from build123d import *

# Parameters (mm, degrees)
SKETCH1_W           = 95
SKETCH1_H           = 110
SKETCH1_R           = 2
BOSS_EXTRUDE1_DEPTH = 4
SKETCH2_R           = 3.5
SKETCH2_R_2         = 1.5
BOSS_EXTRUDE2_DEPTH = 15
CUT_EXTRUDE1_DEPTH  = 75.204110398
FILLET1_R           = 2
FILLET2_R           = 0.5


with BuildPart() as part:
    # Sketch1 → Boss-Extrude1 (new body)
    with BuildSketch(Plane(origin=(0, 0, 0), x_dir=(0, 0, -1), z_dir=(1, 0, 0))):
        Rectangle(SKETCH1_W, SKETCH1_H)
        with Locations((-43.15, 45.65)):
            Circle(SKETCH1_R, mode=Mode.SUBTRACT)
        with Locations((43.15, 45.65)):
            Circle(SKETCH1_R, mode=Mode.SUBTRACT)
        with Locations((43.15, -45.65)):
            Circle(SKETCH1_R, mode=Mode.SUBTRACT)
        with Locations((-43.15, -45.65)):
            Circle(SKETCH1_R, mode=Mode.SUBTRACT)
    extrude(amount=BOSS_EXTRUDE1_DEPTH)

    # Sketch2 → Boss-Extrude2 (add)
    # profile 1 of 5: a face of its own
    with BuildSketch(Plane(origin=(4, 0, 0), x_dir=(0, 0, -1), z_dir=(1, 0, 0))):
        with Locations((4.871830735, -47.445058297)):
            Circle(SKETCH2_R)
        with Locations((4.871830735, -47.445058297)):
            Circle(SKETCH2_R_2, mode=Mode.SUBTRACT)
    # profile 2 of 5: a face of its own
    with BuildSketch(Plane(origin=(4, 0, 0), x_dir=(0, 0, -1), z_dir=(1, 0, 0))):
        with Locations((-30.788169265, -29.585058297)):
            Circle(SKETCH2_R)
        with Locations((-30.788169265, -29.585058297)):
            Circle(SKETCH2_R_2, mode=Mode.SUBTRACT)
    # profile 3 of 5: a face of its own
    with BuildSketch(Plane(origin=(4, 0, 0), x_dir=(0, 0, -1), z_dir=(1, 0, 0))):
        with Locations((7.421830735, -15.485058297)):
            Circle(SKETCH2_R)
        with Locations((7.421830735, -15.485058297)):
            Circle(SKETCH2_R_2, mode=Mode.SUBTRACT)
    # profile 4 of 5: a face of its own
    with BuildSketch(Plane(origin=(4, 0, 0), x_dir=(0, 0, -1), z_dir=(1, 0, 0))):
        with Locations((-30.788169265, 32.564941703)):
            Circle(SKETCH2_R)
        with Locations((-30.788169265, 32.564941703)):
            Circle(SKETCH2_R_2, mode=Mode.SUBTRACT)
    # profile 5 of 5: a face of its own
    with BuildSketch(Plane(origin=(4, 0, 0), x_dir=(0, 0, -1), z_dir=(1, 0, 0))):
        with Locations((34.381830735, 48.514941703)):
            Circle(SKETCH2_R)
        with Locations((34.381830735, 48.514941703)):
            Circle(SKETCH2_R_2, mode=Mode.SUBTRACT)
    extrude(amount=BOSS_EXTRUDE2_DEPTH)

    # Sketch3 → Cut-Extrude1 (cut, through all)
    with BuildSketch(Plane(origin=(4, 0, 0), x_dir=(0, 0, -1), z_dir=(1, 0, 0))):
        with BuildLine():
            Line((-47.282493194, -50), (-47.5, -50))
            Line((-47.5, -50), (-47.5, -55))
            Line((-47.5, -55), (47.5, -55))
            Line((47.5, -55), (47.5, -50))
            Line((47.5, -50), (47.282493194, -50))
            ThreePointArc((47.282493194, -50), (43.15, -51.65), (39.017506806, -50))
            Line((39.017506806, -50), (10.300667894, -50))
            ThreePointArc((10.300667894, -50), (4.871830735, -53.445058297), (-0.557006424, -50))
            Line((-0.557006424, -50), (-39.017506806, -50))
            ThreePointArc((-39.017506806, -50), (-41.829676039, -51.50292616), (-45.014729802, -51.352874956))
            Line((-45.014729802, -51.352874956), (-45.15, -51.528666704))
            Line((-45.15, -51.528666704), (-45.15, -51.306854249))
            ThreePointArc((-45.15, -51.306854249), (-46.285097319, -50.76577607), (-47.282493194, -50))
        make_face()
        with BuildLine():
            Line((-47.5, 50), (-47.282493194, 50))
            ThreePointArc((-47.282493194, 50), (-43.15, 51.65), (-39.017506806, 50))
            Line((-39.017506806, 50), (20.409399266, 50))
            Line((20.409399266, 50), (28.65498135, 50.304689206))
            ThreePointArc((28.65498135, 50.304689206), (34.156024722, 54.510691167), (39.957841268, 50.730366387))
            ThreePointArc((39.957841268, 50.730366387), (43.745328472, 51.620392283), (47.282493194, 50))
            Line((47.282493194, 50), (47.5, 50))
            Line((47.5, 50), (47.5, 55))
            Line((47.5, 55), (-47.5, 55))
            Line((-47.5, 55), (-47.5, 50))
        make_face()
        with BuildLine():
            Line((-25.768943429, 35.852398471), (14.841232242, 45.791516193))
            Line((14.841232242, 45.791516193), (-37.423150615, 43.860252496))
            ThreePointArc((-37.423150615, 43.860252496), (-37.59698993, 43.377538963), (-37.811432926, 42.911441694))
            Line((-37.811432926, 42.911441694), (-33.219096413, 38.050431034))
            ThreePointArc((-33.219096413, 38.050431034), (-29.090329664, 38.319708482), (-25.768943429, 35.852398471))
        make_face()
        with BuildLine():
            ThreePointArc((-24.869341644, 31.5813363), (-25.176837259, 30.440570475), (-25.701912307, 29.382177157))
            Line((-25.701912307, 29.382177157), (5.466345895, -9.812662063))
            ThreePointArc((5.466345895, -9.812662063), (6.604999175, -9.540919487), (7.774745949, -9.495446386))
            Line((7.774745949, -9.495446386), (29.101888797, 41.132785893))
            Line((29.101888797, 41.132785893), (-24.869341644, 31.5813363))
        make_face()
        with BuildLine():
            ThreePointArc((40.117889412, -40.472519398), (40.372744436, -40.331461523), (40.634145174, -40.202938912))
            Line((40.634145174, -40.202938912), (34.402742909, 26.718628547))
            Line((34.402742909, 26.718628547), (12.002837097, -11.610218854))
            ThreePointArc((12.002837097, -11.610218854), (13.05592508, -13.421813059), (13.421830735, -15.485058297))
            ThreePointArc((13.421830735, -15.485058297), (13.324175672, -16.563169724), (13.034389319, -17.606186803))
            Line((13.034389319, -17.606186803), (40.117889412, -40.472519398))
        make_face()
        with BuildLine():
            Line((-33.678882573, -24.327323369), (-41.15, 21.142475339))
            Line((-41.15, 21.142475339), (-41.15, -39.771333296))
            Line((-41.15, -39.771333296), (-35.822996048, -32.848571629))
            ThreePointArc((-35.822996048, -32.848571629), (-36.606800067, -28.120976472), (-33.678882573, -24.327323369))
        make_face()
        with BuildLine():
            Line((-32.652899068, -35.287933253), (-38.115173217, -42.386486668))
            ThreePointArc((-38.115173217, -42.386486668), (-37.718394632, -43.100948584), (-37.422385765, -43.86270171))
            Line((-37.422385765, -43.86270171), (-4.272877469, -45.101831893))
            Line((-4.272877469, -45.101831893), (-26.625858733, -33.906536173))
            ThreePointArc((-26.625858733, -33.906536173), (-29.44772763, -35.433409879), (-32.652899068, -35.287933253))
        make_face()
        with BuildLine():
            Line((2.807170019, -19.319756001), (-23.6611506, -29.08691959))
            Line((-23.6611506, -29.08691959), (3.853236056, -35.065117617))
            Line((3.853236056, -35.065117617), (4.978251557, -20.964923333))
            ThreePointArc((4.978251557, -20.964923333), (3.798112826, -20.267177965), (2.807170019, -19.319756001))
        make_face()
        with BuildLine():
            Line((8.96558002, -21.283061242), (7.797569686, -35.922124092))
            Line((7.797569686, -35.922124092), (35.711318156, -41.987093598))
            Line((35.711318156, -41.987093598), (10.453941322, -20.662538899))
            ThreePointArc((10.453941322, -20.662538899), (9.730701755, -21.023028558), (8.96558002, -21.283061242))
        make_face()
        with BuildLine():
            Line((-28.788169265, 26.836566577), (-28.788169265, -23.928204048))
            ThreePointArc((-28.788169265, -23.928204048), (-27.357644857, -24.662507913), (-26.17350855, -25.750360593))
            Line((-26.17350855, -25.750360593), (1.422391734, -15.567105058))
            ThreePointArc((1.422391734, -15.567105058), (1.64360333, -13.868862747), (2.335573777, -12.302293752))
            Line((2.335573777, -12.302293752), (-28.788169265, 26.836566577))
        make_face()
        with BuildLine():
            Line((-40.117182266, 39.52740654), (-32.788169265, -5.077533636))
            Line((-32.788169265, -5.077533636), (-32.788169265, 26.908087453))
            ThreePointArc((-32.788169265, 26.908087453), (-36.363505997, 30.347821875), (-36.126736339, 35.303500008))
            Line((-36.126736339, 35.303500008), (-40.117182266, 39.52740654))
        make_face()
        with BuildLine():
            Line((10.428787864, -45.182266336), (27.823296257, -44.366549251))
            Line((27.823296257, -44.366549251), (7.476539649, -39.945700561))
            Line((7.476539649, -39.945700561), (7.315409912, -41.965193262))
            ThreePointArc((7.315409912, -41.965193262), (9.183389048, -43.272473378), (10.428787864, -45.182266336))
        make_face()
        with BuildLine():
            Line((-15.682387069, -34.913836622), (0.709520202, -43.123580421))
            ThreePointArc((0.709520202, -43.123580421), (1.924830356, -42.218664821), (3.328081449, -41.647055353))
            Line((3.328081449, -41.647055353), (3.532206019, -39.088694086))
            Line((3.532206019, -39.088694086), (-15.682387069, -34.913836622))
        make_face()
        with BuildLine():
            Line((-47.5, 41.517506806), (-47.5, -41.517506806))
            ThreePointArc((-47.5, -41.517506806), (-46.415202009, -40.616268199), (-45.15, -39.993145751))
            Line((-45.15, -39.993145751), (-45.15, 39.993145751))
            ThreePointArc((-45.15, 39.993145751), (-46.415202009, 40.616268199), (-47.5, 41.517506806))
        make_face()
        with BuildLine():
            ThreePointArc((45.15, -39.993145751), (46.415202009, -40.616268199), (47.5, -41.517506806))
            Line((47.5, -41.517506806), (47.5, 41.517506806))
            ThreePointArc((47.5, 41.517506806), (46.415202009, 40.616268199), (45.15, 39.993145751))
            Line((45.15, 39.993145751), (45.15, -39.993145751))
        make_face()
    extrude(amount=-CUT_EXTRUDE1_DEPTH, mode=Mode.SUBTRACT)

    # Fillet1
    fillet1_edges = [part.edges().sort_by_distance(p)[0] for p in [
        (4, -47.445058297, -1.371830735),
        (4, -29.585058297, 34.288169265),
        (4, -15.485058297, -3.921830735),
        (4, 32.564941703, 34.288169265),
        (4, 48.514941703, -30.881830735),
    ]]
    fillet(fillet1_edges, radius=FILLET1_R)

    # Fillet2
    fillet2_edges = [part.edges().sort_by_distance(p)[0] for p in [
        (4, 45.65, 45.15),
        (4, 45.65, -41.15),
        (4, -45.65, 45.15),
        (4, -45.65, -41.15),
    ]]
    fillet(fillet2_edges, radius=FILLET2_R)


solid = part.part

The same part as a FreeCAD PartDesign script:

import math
import FreeCAD as App
import Part
import Sketcher
from FreeCAD import Vector
Q = App.Units.Quantity


def edges_at(feature, points):
    """Names of the edges that pass closest to the given points."""
    edges = feature.Shape.Edges
    near = lambda p: min(range(len(edges)), key=lambda i: edges[i].distToShape(Part.Vertex(*p))[0])
    return sorted({f"Edge{near(p) + 1}" for p in points})


def add_polygon(sketch, points):
    """Adds a closed chain of lines whose ends are joined by coincident constraints."""
    first, n = sketch.GeometryCount, len(points)
    for a, b in zip(points, points[1:] + points[:1]):
        sketch.addGeometry(Part.LineSegment(App.Vector(*a, 0), App.Vector(*b, 0)), False)
    for i in range(n):
        sketch.addConstraint(Sketcher.Constraint("Coincident", first + i, 2, first + (i + 1) % n, 1))

doc = App.newDocument("Part")
body = doc.addObject("PartDesign::Body", "Body")

sketch1 = body.newObject("Sketcher::SketchObject", "Sketch")
sketch1.AttachmentSupport = (doc.getObject("YZ_Plane"), [""])
sketch1.MapMode = "FlatFace"
add_polygon(sketch1, [(55, 47.5), (-55, 47.5), (-55, -47.5), (55, -47.5)])
sketch1.addGeometry(Part.Circle(Vector(-45.6, 43.1, 0), Vector(0, 0, 1), 2), False)
sketch1.addGeometry(Part.Circle(Vector(-45.6, -43.1, 0), Vector(0, 0, 1), 2), False)
sketch1.addGeometry(Part.Circle(Vector(45.6, 43.1, 0), Vector(0, 0, 1), 2), False)
sketch1.addGeometry(Part.Circle(Vector(45.6, -43.1, 0), Vector(0, 0, 1), 2), False)
sketch1.addConstraint([
    Sketcher.Constraint("Horizontal", 0),
    Sketcher.Constraint("Vertical", 1),
    Sketcher.Constraint("Horizontal", 2),
    Sketcher.Constraint("Vertical", 3),
    Sketcher.Constraint("Equal", 4, 5),
    Sketcher.Constraint("Equal", 5, 6),
    Sketcher.Constraint("Equal", 6, 7),
    Sketcher.Constraint("Symmetric", 5, 3, 6, 3, -1, 1),
    Sketcher.Constraint("Symmetric", 4, 3, 7, 3, -1, 1),
    Sketcher.Constraint("Symmetric", 0, 2, 2, 2, -1, 1),
    Sketcher.Constraint("Symmetric", 4, 3, 6, 3, -2),
    Sketcher.Constraint("Diameter", 4, Q("4 mm")),
    Sketcher.Constraint("DistanceX", 0, 2, 0, 1, Q("110 mm")),
    Sketcher.Constraint("DistanceY", 1, 2, 1, 1, Q("95 mm")),
    Sketcher.Constraint("DistanceY", 5, 3, 4, 3, Q("86.3 mm")),
    Sketcher.Constraint("DistanceX", 4, 3, 6, 3, Q("91.3 mm")),
])
pad1 = body.newObject("PartDesign::Pad", "Pad")
pad1.Profile = sketch1
pad1.Length = 4

sketch2 = body.newObject("Sketcher::SketchObject", "Sketch001")
sketch2.AttachmentSupport = (doc.getObject("YZ_Plane"), [""])
sketch2.MapMode = "FlatFace"
sketch2.AttachmentOffset = App.Placement(Vector(0, 0, 4), App.Rotation())
sketch2.addGeometry([
    Part.Circle(Vector(-47.4, -4.9, 0), Vector(0, 0, 1), 3.5),
    Part.Circle(Vector(-47.4, -4.9, 0), Vector(0, 0, 1), 1.5),
    Part.Circle(Vector(-29.6, 30.8, 0), Vector(0, 0, 1), 3.5),
    Part.Circle(Vector(-29.6, 30.8, 0), Vector(0, 0, 1), 1.5),
    Part.Circle(Vector(-15.5, -7.4, 0), Vector(0, 0, 1), 3.5),
    Part.Circle(Vector(-15.5, -7.4, 0), Vector(0, 0, 1), 1.5),
    Part.Circle(Vector(32.6, 30.8, 0), Vector(0, 0, 1), 3.5),
    Part.Circle(Vector(32.6, 30.8, 0), Vector(0, 0, 1), 1.5),
    Part.Circle(Vector(48.5, -34.4, 0), Vector(0, 0, 1), 3.5),
    Part.Circle(Vector(48.5, -34.4, 0), Vector(0, 0, 1), 1.5),
], False)
sketch2.addConstraint([
    Sketcher.Constraint("Coincident", 1, 3, 0, 3),
    Sketcher.Constraint("Coincident", 3, 3, 2, 3),
    Sketcher.Constraint("Coincident", 5, 3, 4, 3),
    Sketcher.Constraint("Coincident", 7, 3, 6, 3),
    Sketcher.Constraint("Coincident", 9, 3, 8, 3),
    Sketcher.Constraint("Equal", 0, 2),
    Sketcher.Constraint("Equal", 1, 3),
    Sketcher.Constraint("Equal", 2, 4),
    Sketcher.Constraint("Equal", 3, 5),
    Sketcher.Constraint("Equal", 4, 6),
    Sketcher.Constraint("Equal", 5, 7),
    Sketcher.Constraint("Equal", 6, 8),
    Sketcher.Constraint("Equal", 7, 9),
    Sketcher.Constraint("Horizontal", 3, 3, 6, 3),
    Sketcher.Constraint("Diameter", 0, Q("7 mm")),
    Sketcher.Constraint("Diameter", 1, Q("3 mm")),
    Sketcher.Constraint("DistanceX", 4, 3, 8, 3, Q("64 mm")),
    Sketcher.Constraint("DistanceX", 2, 3, 4, 3, Q("14.1 mm")),
    Sketcher.Constraint("DistanceX", 0, 3, 2, 3, Q("17.86 mm")),
    Sketcher.Constraint("DistanceY", 0, 3, 2, 3, Q("35.66 mm")),
    Sketcher.Constraint("DistanceY", 4, 3, 0, 3, Q("2.55 mm")),
    Sketcher.Constraint("DistanceX", 4, 3, 6, 3, Q("48.05 mm")),
    Sketcher.Constraint("DistanceY", 8, 3, 6, 3, Q("65.17 mm")),
    Sketcher.Constraint("DistanceX", 0, 3, -1, 1, Q("47.445058 mm")),
    Sketcher.Constraint("DistanceY", 0, 3, -1, 1, Q("4.871831 mm")),
])
pad2 = body.newObject("PartDesign::Pad", "Pad001")
pad2.Profile = sketch2
pad2.Length = 15

sketch3 = body.newObject("Sketcher::SketchObject", "Sketch002")
sketch3.AttachmentSupport = (doc.getObject("YZ_Plane"), [""])
sketch3.MapMode = "FlatFace"
sketch3.AttachmentOffset = App.Placement(Vector(0, 0, 4), App.Rotation())
sketch3.addGeometry([
    Part.LineSegment(Vector(-50, 47.28, 0), Vector(-50, 47.5, 0)),
    Part.LineSegment(Vector(-50, 47.5, 0), Vector(-55, 47.5, 0)),
    Part.LineSegment(Vector(-55, 47.5, 0), Vector(-55, -47.5, 0)),
    Part.LineSegment(Vector(-55, -47.5, 0), Vector(-50, -47.5, 0)),
    Part.LineSegment(Vector(-50, -47.5, 0), Vector(-50, -47.28, 0)),
    Part.ArcOfCircle(Part.Circle(Vector(-45.65, -43.15, 0), Vector(0, 0, 1), 6), math.radians(136), math.radians(224)),
    Part.LineSegment(Vector(-50, -39.02, 0), Vector(-50, -10.3, 0)),
    Part.ArcOfCircle(Part.Circle(Vector(-47.45, -4.87, 0), Vector(0, 0, 1), 6), math.radians(115), math.radians(245)),
    Part.LineSegment(Vector(-50, 0.56, 0), Vector(-50, 39.02, 0)),
    Part.ArcOfCircle(Part.Circle(Vector(-45.65, 43.15, 0), Vector(0, 0, 1), 6), math.radians(162), math.radians(224)),
    Part.LineSegment(Vector(-51.35, 45.01, 0), Vector(-51.53, 45.15, 0)),
    Part.LineSegment(Vector(-51.53, 45.15, 0), Vector(-51.31, 45.15, 0)),
    Part.ArcOfCircle(Part.Circle(Vector(-45.65, 43.15, 0), Vector(0, 0, 1), 6), math.radians(136), math.radians(161)),
    Part.LineSegment(Vector(50, 47.5, 0), Vector(50, 47.28, 0)),
    Part.ArcOfCircle(Part.Circle(Vector(45.65, 43.15, 0), Vector(0, 0, 1), 6), math.radians(-44), math.radians(44)),
    Part.LineSegment(Vector(50, 39.02, 0), Vector(50, -20.41, 0)),
    Part.LineSegment(Vector(50, -20.41, 0), Vector(50.3, -28.65, 0)),
    Part.ArcOfCircle(Part.Circle(Vector(48.51, -34.38, 0), Vector(0, 0, 1), 6), math.radians(-68), math.radians(73)),
    Part.ArcOfCircle(Part.Circle(Vector(45.65, -43.15, 0), Vector(0, 0, 1), 6), math.radians(-44), math.radians(32)),
    Part.LineSegment(Vector(50, -47.28, 0), Vector(50, -47.5, 0)),
    Part.LineSegment(Vector(50, -47.5, 0), Vector(55, -47.5, 0)),
    Part.LineSegment(Vector(55, -47.5, 0), Vector(55, 47.5, 0)),
    Part.LineSegment(Vector(55, 47.5, 0), Vector(50, 47.5, 0)),
    Part.LineSegment(Vector(35.85, 25.77, 0), Vector(45.79, -14.84, 0)),
    Part.LineSegment(Vector(45.79, -14.84, 0), Vector(43.86, 37.42, 0)),
    Part.ArcOfCircle(Part.Circle(Vector(45.65, 43.15, 0), Vector(0, 0, 1), 6), math.radians(-117.16), math.radians(-107.36)),
    Part.LineSegment(Vector(42.91, 37.81, 0), Vector(38.05, 33.22, 0)),
    Part.ArcOfCircle(Part.Circle(Vector(32.56, 30.79, 0), Vector(0, 0, 1), 6), math.radians(-57), math.radians(24)),
    Part.ArcOfCircle(Part.Circle(Vector(32.56, 30.79, 0), Vector(0, 0, 1), 6), math.radians(-122), math.radians(-99)),
    Part.LineSegment(Vector(29.38, 25.7, 0), Vector(-9.81, -5.47, 0)),
    Part.ArcOfCircle(Part.Circle(Vector(-15.49, -7.42, 0), Vector(0, 0, 1), 6), math.radians(-3), math.radians(19)),
    Part.LineSegment(Vector(-9.5, -7.77, 0), Vector(41.13, -29.1, 0)),
    Part.LineSegment(Vector(41.13, -29.1, 0), Vector(31.58, 24.87, 0)),
    Part.ArcOfCircle(Part.Circle(Vector(-45.65, -43.15, 0), Vector(0, 0, 1), 6), math.radians(24.79), math.radians(30.35)),
    Part.LineSegment(Vector(-40.2, -40.63, 0), Vector(26.72, -34.4, 0)),
    Part.LineSegment(Vector(26.72, -34.4, 0), Vector(-11.61, -12, 0)),
    Part.ArcOfCircle(Part.Circle(Vector(-15.49, -7.42, 0), Vector(0, 0, 1), 6), math.radians(-90), math.radians(-50)),
    Part.ArcOfCircle(Part.Circle(Vector(-15.49, -7.42, 0), Vector(0, 0, 1), 6), math.radians(-111), math.radians(-90)),
    Part.LineSegment(Vector(-17.61, -13.03, 0), Vector(-40.47, -40.12, 0)),
    Part.LineSegment(Vector(-24.33, 33.68, 0), Vector(21.14, 41.15, 0)),
    Part.LineSegment(Vector(21.14, 41.15, 0), Vector(-39.77, 41.15, 0)),
    Part.LineSegment(Vector(-39.77, 41.15, 0), Vector(-32.85, 35.82, 0)),
    Part.ArcOfCircle(Part.Circle(Vector(-29.59, 30.79, 0), Vector(0, 0, 1), 6), math.radians(29), math.radians(123)),
    Part.LineSegment(Vector(-35.29, 32.65, 0), Vector(-42.39, 38.12, 0)),
    Part.ArcOfCircle(Part.Circle(Vector(-45.65, 43.15, 0), Vector(0, 0, 1), 6), math.radians(-72.67), math.radians(-57.05)),
    Part.LineSegment(Vector(-43.86, 37.42, 0), Vector(-45.1, 4.27, 0)),
    Part.LineSegment(Vector(-45.1, 4.27, 0), Vector(-33.91, 26.63, 0)),
    Part.ArcOfCircle(Part.Circle(Vector(-29.59, 30.79, 0), Vector(0, 0, 1), 6), math.radians(162), math.radians(224)),
    Part.LineSegment(Vector(-19.32, -2.81, 0), Vector(-29.09, 23.66, 0)),
    Part.LineSegment(Vector(-29.09, 23.66, 0), Vector(-35.07, -3.85, 0)),
    Part.LineSegment(Vector(-35.07, -3.85, 0), Vector(-20.96, -4.98, 0)),
    Part.ArcOfCircle(Part.Circle(Vector(-15.49, -7.42, 0), Vector(0, 0, 1), 6), math.radians(130), math.radians(156)),
    Part.LineSegment(Vector(-21.28, -8.97, 0), Vector(-35.92, -7.8, 0)),
    Part.LineSegment(Vector(-35.92, -7.8, 0), Vector(-41.99, -35.71, 0)),
    Part.LineSegment(Vector(-41.99, -35.71, 0), Vector(-20.66, -10.45, 0)),
    Part.ArcOfCircle(Part.Circle(Vector(-15.49, -7.42, 0), Vector(0, 0, 1), 6), math.radians(-165.09), math.radians(-149.65)),
    Part.LineSegment(Vector(26.84, 28.79, 0), Vector(-23.93, 28.79, 0)),
    Part.ArcOfCircle(Part.Circle(Vector(-29.59, 30.79, 0), Vector(0, 0, 1), 6), math.radians(-50), math.radians(-19)),
    Part.LineSegment(Vector(-25.75, 26.17, 0), Vector(-15.57, -1.42, 0)),
    Part.ArcOfCircle(Part.Circle(Vector(-15.49, -7.42, 0), Vector(0, 0, 1), 6), math.radians(58), math.radians(91)),
    Part.LineSegment(Vector(-12.3, -2.34, 0), Vector(26.84, 28.79, 0)),
    Part.LineSegment(Vector(39.53, 40.12, 0), Vector(-5.08, 32.79, 0)),
    Part.LineSegment(Vector(-5.08, 32.79, 0), Vector(26.91, 32.79, 0)),
    Part.ArcOfCircle(Part.Circle(Vector(32.56, 30.79, 0), Vector(0, 0, 1), 6), math.radians(63), math.radians(161)),
    Part.LineSegment(Vector(35.3, 36.13, 0), Vector(39.53, 40.12, 0)),
    Part.LineSegment(Vector(-45.18, -10.43, 0), Vector(-44.37, -27.82, 0)),
    Part.LineSegment(Vector(-44.37, -27.82, 0), Vector(-39.95, -7.48, 0)),
    Part.LineSegment(Vector(-39.95, -7.48, 0), Vector(-41.97, -7.32, 0)),
    Part.ArcOfCircle(Part.Circle(Vector(-47.45, -4.87, 0), Vector(0, 0, 1), 6), math.radians(-68), math.radians(-24)),
    Part.LineSegment(Vector(-34.91, 15.68, 0), Vector(-43.12, -0.71, 0)),
    Part.ArcOfCircle(Part.Circle(Vector(-47.45, -4.87, 0), Vector(0, 0, 1), 6), math.radians(15), math.radians(44)),
    Part.LineSegment(Vector(-41.65, -3.33, 0), Vector(-39.09, -3.53, 0)),
    Part.LineSegment(Vector(-39.09, -3.53, 0), Vector(-34.91, 15.68, 0)),
    Part.LineSegment(Vector(41.52, 47.5, 0), Vector(-41.52, 47.5, 0)),
    Part.ArcOfCircle(Part.Circle(Vector(-45.65, 43.15, 0), Vector(0, 0, 1), 6), math.radians(19), math.radians(46)),
    Part.LineSegment(Vector(-39.99, 45.15, 0), Vector(39.99, 45.15, 0)),
    Part.ArcOfCircle(Part.Circle(Vector(45.65, 43.15, 0), Vector(0, 0, 1), 6), math.radians(134), math.radians(161)),
    Part.ArcOfCircle(Part.Circle(Vector(-45.65, -43.15, 0), Vector(0, 0, 1), 6), math.radians(-46), math.radians(-19)),
    Part.LineSegment(Vector(-41.52, -47.5, 0), Vector(41.52, -47.5, 0)),
    Part.ArcOfCircle(Part.Circle(Vector(45.65, -43.15, 0), Vector(0, 0, 1), 6), math.radians(-161), math.radians(-134)),
    Part.LineSegment(Vector(39.99, -45.15, 0), Vector(-39.99, -45.15, 0)),
], False)
sketch3.addConstraint([
    Sketcher.Constraint("Coincident", 0, 2, 1, 1),
    Sketcher.Constraint("Coincident", 1, 2, 2, 1),
    Sketcher.Constraint("Coincident", 2, 2, 3, 1),
    Sketcher.Constraint("Coincident", 3, 2, 4, 1),
    Sketcher.Constraint("Coincident", 4, 2, 5, 2),
    Sketcher.Constraint("Coincident", 5, 1, 6, 1),
    Sketcher.Constraint("Coincident", 6, 2, 7, 2),
    Sketcher.Constraint("Coincident", 7, 1, 8, 1),
    Sketcher.Constraint("Coincident", 8, 2, 9, 2),
    Sketcher.Constraint("Coincident", 9, 1, 10, 1),
    Sketcher.Constraint("Coincident", 10, 2, 11, 1),
    Sketcher.Constraint("Coincident", 11, 2, 12, 2),
    Sketcher.Constraint("Coincident", 12, 1, 0, 1),
    Sketcher.Constraint("Coincident", 13, 2, 14, 2),
    Sketcher.Constraint("Coincident", 14, 1, 15, 1),
    Sketcher.Constraint("Coincident", 15, 2, 16, 1),
    Sketcher.Constraint("Coincident", 16, 2, 17, 2),
    Sketcher.Constraint("Coincident", 17, 1, 18, 2),
    Sketcher.Constraint("Coincident", 18, 1, 19, 1),
    Sketcher.Constraint("Coincident", 19, 2, 20, 1),
    Sketcher.Constraint("Coincident", 20, 2, 21, 1),
    Sketcher.Constraint("Coincident", 21, 2, 22, 1),
    Sketcher.Constraint("Coincident", 22, 2, 13, 1),
    Sketcher.Constraint("Coincident", 23, 2, 24, 1),
    Sketcher.Constraint("Coincident", 24, 2, 25, 2),
    Sketcher.Constraint("Coincident", 25, 1, 26, 1),
    Sketcher.Constraint("Coincident", 26, 2, 27, 2),
    Sketcher.Constraint("Coincident", 27, 1, 23, 1),
    Sketcher.Constraint("Coincident", 28, 1, 29, 1),
    Sketcher.Constraint("Coincident", 29, 2, 30, 2),
    Sketcher.Constraint("Coincident", 30, 1, 31, 1),
    Sketcher.Constraint("Coincident", 31, 2, 32, 1),
    Sketcher.Constraint("Coincident", 32, 2, 28, 2),
    Sketcher.Constraint("Coincident", 33, 1, 34, 1),
    Sketcher.Constraint("Coincident", 34, 2, 35, 1),
    Sketcher.Constraint("Coincident", 35, 2, 36, 2),
    Sketcher.Constraint("Tangent", 36, 1, 37, 2),
    Sketcher.Constraint("Coincident", 37, 1, 38, 1),
    Sketcher.Constraint("Coincident", 38, 2, 33, 2),
    Sketcher.Constraint("Coincident", 39, 2, 40, 1),
    Sketcher.Constraint("Coincident", 40, 2, 41, 1),
    Sketcher.Constraint("Coincident", 41, 2, 42, 2),
    Sketcher.Constraint("Coincident", 42, 1, 39, 1),
    Sketcher.Constraint("Coincident", 43, 2, 44, 2),
    Sketcher.Constraint("Coincident", 44, 1, 45, 1),
    Sketcher.Constraint("Coincident", 45, 2, 46, 1),
    Sketcher.Constraint("Coincident", 46, 2, 47, 2),
    Sketcher.Constraint("Coincident", 47, 1, 43, 1),
    Sketcher.Constraint("Coincident", 48, 2, 49, 1),
    Sketcher.Constraint("Coincident", 49, 2, 50, 1),
    Sketcher.Constraint("Coincident", 50, 2, 51, 2),
    Sketcher.Constraint("Coincident", 51, 1, 48, 1),
    Sketcher.Constraint("Coincident", 52, 2, 53, 1),
    Sketcher.Constraint("Coincident", 53, 2, 54, 1),
    Sketcher.Constraint("Coincident", 54, 2, 55, 2),
    Sketcher.Constraint("Coincident", 55, 1, 52, 1),
    Sketcher.Constraint("Coincident", 56, 2, 57, 2),
    Sketcher.Constraint("Coincident", 57, 1, 58, 1),
    Sketcher.Constraint("Coincident", 58, 2, 59, 2),
    Sketcher.Constraint("Coincident", 59, 1, 60, 1),
    Sketcher.Constraint("Coincident", 60, 2, 56, 1),
    Sketcher.Constraint("Coincident", 61, 2, 62, 1),
    Sketcher.Constraint("Coincident", 62, 2, 63, 2),
    Sketcher.Constraint("Coincident", 63, 1, 64, 1),
    Sketcher.Constraint("Coincident", 64, 2, 61, 1),
    Sketcher.Constraint("Coincident", 65, 2, 66, 1),
    Sketcher.Constraint("Coincident", 66, 2, 67, 1),
    Sketcher.Constraint("Coincident", 67, 2, 68, 2),
    Sketcher.Constraint("Coincident", 68, 1, 65, 1),
    Sketcher.Constraint("Coincident", 69, 2, 70, 2),
    Sketcher.Constraint("Coincident", 70, 1, 71, 1),
    Sketcher.Constraint("Coincident", 71, 2, 72, 1),
    Sketcher.Constraint("Coincident", 72, 2, 69, 1),
    Sketcher.Constraint("Coincident", 73, 2, 74, 2),
    Sketcher.Constraint("Coincident", 74, 1, 75, 1),
    Sketcher.Constraint("Coincident", 75, 2, 76, 2),
    Sketcher.Constraint("Coincident", 76, 1, 73, 1),
    Sketcher.Constraint("Coincident", 77, 1, 78, 1),
    Sketcher.Constraint("Coincident", 78, 2, 79, 2),
    Sketcher.Constraint("Coincident", 79, 1, 80, 1),
    Sketcher.Constraint("Coincident", 80, 2, 77, 2),
    Sketcher.Constraint("Vertical", 0),
    Sketcher.Constraint("Horizontal", 1),
    Sketcher.Constraint("Vertical", 2),
    Sketcher.Constraint("Horizontal", 3),
    Sketcher.Constraint("Vertical", 4),
    Sketcher.Constraint("Vertical", 6),
    Sketcher.Constraint("Vertical", 8),
    Sketcher.Constraint("Horizontal", 11),
    Sketcher.Constraint("Vertical", 13),
    Sketcher.Constraint("Vertical", 15),
    Sketcher.Constraint("Vertical", 19),
    Sketcher.Constraint("Horizontal", 20),
    Sketcher.Constraint("Vertical", 21),
    Sketcher.Constraint("Horizontal", 22),
    Sketcher.Constraint("Horizontal", 40),
    Sketcher.Constraint("Horizontal", 56),
    Sketcher.Constraint("Horizontal", 62),
    Sketcher.Constraint("Horizontal", 73),
    Sketcher.Constraint("Horizontal", 75),
    Sketcher.Constraint("Horizontal", 78),
    Sketcher.Constraint("Horizontal", 80),
    Sketcher.Constraint("Coincident", 12, 3, 9, 3),
    Sketcher.Constraint("Coincident", 25, 3, 14, 3),
    Sketcher.Constraint("Coincident", 28, 3, 27, 3),
    Sketcher.Constraint("Coincident", 33, 3, 5, 3),
    Sketcher.Constraint("Coincident", 36, 3, 30, 3),
    Sketcher.Constraint("Coincident", 44, 3, 9, 3),
    Sketcher.Constraint("Coincident", 47, 3, 42, 3),
    Sketcher.Constraint("Coincident", 51, 3, 30, 3),
    Sketcher.Constraint("Coincident", 55, 3, 30, 3),
    Sketcher.Constraint("Coincident", 57, 3, 42, 3),
    Sketcher.Constraint("Coincident", 59, 3, 30, 3),
    Sketcher.Constraint("Coincident", 63, 3, 27, 3),
    Sketcher.Constraint("Coincident", 68, 3, 7, 3),
    Sketcher.Constraint("Coincident", 70, 3, 7, 3),
    Sketcher.Constraint("Coincident", 74, 3, 9, 3),
    Sketcher.Constraint("Coincident", 76, 3, 14, 3),
    Sketcher.Constraint("Coincident", 77, 3, 5, 3),
    Sketcher.Constraint("Coincident", 79, 3, 18, 3),
    Sketcher.Constraint("Equal", 5, 7),
    Sketcher.Constraint("Equal", 7, 9),
    Sketcher.Constraint("Equal", 9, 12),
    Sketcher.Constraint("Equal", 12, 14),
    Sketcher.Constraint("Equal", 14, 17),
    Sketcher.Constraint("Equal", 17, 18),
    Sketcher.Constraint("Equal", 18, 25),
    Sketcher.Constraint("Equal", 25, 27),
    Sketcher.Constraint("Equal", 27, 28),
    Sketcher.Constraint("Equal", 28, 30),
    Sketcher.Constraint("Equal", 30, 33),
    Sketcher.Constraint("Equal", 33, 36),
    Sketcher.Constraint("Equal", 36, 37),
    Sketcher.Constraint("Equal", 37, 42),
    Sketcher.Constraint("Equal", 42, 44),
    Sketcher.Constraint("Equal", 44, 47),
    Sketcher.Constraint("Equal", 47, 51),
    Sketcher.Constraint("Equal", 51, 55),
    Sketcher.Constraint("Equal", 55, 57),
    Sketcher.Constraint("Equal", 57, 59),
    Sketcher.Constraint("Equal", 59, 63),
    Sketcher.Constraint("Equal", 63, 68),
    Sketcher.Constraint("Equal", 68, 70),
    Sketcher.Constraint("Equal", 70, 74),
    Sketcher.Constraint("Equal", 74, 76),
    Sketcher.Constraint("Equal", 76, 77),
    Sketcher.Constraint("Equal", 77, 79),
    Sketcher.Constraint("Symmetric", 5, 3, 14, 3, -1, 1),
    Sketcher.Constraint("Symmetric", 9, 3, 18, 3, -1, 1),
    Sketcher.Constraint("Symmetric", 0, 2, 19, 2, -1, 1),
    Sketcher.Constraint("Symmetric", 2, 2, 21, 2, -1, 1),
    Sketcher.Constraint("Symmetric", 9, 3, 14, 3, -2),
    Sketcher.Constraint("Symmetric", 3, 2, 19, 2, -2),
    Sketcher.Constraint("Parallel", 16, 24),
    Sketcher.Constraint("Parallel", 10, 41),
    Sketcher.Constraint("Parallel", 41, 43),
    Sketcher.Constraint("Parallel", 50, 52),
    Sketcher.Constraint("Parallel", 49, 53),
    Sketcher.Constraint("Parallel", 38, 54),
    Sketcher.Constraint("Parallel", 48, 58),
    Sketcher.Constraint("Parallel", 29, 60),
    Sketcher.Constraint("Parallel", 39, 61),
    Sketcher.Constraint("Parallel", 26, 64),
    Sketcher.Constraint("Parallel", 53, 66),
    Sketcher.Constraint("Parallel", 52, 67),
    Sketcher.Constraint("Parallel", 46, 69),
    Sketcher.Constraint("Parallel", 67, 71),
    Sketcher.Constraint("Parallel", 66, 72),
    Sketcher.Constraint("Horizontal", 28, 3, 42, 3),
    Sketcher.Constraint("Horizontal", 12, 1, 13, 2),
    Sketcher.Constraint("Horizontal", 8, 2, 14, 1),
    Sketcher.Constraint("Horizontal", 22, 2, 73, 2),
    Sketcher.Constraint("Horizontal", 11, 2, 74, 1),
    Sketcher.Constraint("Horizontal", 20, 2, 77, 1),
    Sketcher.Constraint("Vertical", 4, 2, 5, 1),
    Sketcher.Constraint("Vertical", 6, 2, 7, 1),
    Sketcher.Constraint("Vertical", 59, 3, 36, 1),
    Sketcher.Constraint("Vertical", 75, 2, 79, 1),
    Sketcher.Constraint("Radius", 5, Q("6 mm")),
    Sketcher.Constraint("DistanceX", 1, 2, 1, 1, Q("5 mm")),
    Sketcher.Constraint("DistanceY", 2, 2, 2, 1, Q("95 mm")),
    Sketcher.Constraint("DistanceX", 0, 2, -1, 1, Q("50 mm")),
    Sketcher.Constraint("DistanceX", 5, 3, -1, 1, Q("45.65 mm")),
    Sketcher.Constraint("DistanceY", 5, 3, -1, 1, Q("43.15 mm")),
    Sketcher.Constraint("DistanceY", -1, 1, 10, 2, Q("45.15 mm")),
    Sketcher.Constraint("DistanceY", -1, 1, 39, 2, Q("41.15 mm")),
    Sketcher.Constraint("DistanceY", 8, 1, 8, 2, Q("38.4605 mm")),
    Sketcher.Constraint("Distance", 29, Q("50.076898 mm")),
    Sketcher.Constraint("Distance", 39, Q("46.079499 mm")),
    Sketcher.Constraint("DistanceX", 40, 2, 40, 1, Q("60.913809 mm")),
    Sketcher.Constraint("DistanceX", 56, 2, 56, 1, Q("50.764771 mm")),
    Sketcher.Constraint("DistanceX", 62, 1, 62, 2, Q("31.985621 mm")),
    Sketcher.Constraint("DistanceY", 6, 1, 6, 2, Q("28.716839 mm")),
    Sketcher.Constraint("DistanceY", 15, 2, -1, 1, Q("20.409399 mm")),
    Sketcher.Constraint("DistanceX", -1, 1, 27, 1, Q("35.852398 mm")),
    Sketcher.Constraint("DistanceX", 44, 1, -1, 1, Q("43.862702 mm")),
    Sketcher.Constraint("DistanceY", -1, 1, 47, 1, Q("32.652899 mm")),
    Sketcher.Constraint("DistanceX", -1, 1, 63, 1, Q("35.3035 mm")),
    Sketcher.Constraint("DistanceX", 66, 2, -1, 1, Q("39.945701 mm")),
    Sketcher.Constraint("Distance", 16, Q("8.25121 mm")),
    Sketcher.Constraint("Distance", 23, Q("41.80876 mm")),
    Sketcher.Constraint("Distance", 32, Q("54.809889 mm")),
    Sketcher.Constraint("Distance", 34, Q("67.21106 mm")),
    Sketcher.Constraint("Distance", 41, Q("8.735079 mm")),
    Sketcher.Constraint("Distance", 43, Q("8.956891 mm")),
    Sketcher.Constraint("Distance", 45, Q("33.17266 mm")),
    Sketcher.Constraint("Distance", 46, Q("24.999808 mm")),
    Sketcher.Constraint("Distance", 48, Q("28.212931 mm")),
    Sketcher.Constraint("Distance", 64, Q("5.81077 mm")),
    Sketcher.Constraint("Distance", 66, Q("20.821489 mm")),
    Sketcher.Constraint("Distance", 67, Q("2.025911 mm")),
    Sketcher.Constraint("Distance", 69, Q("18.332881 mm")),
    Sketcher.Constraint("Distance", 71, Q("2.566492 mm")),
    Sketcher.Constraint("Distance", 72, Q("19.66291 mm")),
    Sketcher.Constraint("DistanceX", 11, 1, 11, 2, Q("0.221812 mm")),
    Sketcher.Constraint("DistanceX", -1, 1, 17, 3, Q("48.514942 mm")),
    Sketcher.Constraint("DistanceY", 17, 3, -1, 1, Q("34.381831 mm")),
    Sketcher.Constraint("DistanceX", -1, 1, 27, 3, Q("32.564942 mm")),
    Sketcher.Constraint("DistanceY", -1, 1, 27, 3, Q("30.788169 mm")),
    Sketcher.Constraint("DistanceX", 30, 3, -1, 1, Q("15.485058 mm")),
    Sketcher.Constraint("DistanceY", 30, 3, -1, 1, Q("7.421831 mm")),
    Sketcher.Constraint("DistanceX", 42, 3, -1, 1, Q("29.585058 mm")),
    Sketcher.Constraint("DistanceY", -1, 1, 24, 2, Q("37.423151 mm")),
    Sketcher.Constraint("DistanceX", -1, 1, 25, 1, Q("42.911442 mm")),
    Sketcher.Constraint("DistanceX", -1, 1, 26, 2, Q("38.050431 mm")),
    Sketcher.Constraint("DistanceY", 31, 2, -1, 1, Q("29.101889 mm")),
    Sketcher.Constraint("DistanceY", -1, 1, 32, 2, Q("24.869342 mm")),
    Sketcher.Constraint("DistanceX", 33, 1, -1, 1, Q("40.202939 mm")),
    Sketcher.Constraint("DistanceX", -1, 1, 34, 2, Q("26.718629 mm")),
    Sketcher.Constraint("DistanceX", 35, 2, -1, 1, Q("11.610219 mm")),
    Sketcher.Constraint("DistanceY", 37, 1, -1, 1, Q("13.034389 mm")),
    Sketcher.Constraint("DistanceX", 38, 2, -1, 1, Q("40.472519 mm")),
    Sketcher.Constraint("DistanceX", 45, 2, -1, 1, Q("45.101832 mm")),
    Sketcher.Constraint("DistanceX", 48, 2, -1, 1, Q("29.08692 mm")),
    Sketcher.Constraint("DistanceY", -1, 1, 48, 2, Q("23.661151 mm")),
    Sketcher.Constraint("DistanceY", 50, 2, -1, 1, Q("4.978252 mm")),
    Sketcher.Constraint("DistanceY", 52, 2, -1, 1, Q("7.79757 mm")),
    Sketcher.Constraint("DistanceY", 53, 2, -1, 1, Q("35.711318 mm")),
    Sketcher.Constraint("DistanceX", 54, 2, -1, 1, Q("20.662539 mm")),
    Sketcher.Constraint("DistanceX", 55, 1, -1, 1, Q("21.283061 mm")),
    Sketcher.Constraint("DistanceY", -1, 1, 56, 2, Q("28.788169 mm")),
    Sketcher.Constraint("DistanceX", 57, 1, -1, 1, Q("25.750361 mm")),
    Sketcher.Constraint("DistanceX", 65, 2, -1, 1, Q("44.366549 mm")),
    Sketcher.Constraint("Distance", 31, Q("54.936918 mm")),
    Sketcher.Constraint("Distance", 60, Q("50.005377 mm")),
    Sketcher.Constraint("Distance", 65, Q("17.413624 mm")),
])
pocket1 = body.newObject("PartDesign::Pocket", "Pocket")
pocket1.Profile = sketch3
pocket1.Type = "ThroughAll"
doc.recompute()

fillet = body.newObject("PartDesign::Fillet", "Fillet")
fillet.Base = (pocket1, edges_at(pocket1, [
    (4, -47.445, -1.372),
    (4, -29.585, 34.288),
    (4, -15.485, -3.922),
    (4, 32.565, 34.288),
    (4, 48.515, -30.882),
]))
fillet.Radius = 2
doc.recompute()

fillet2 = body.newObject("PartDesign::Fillet", "Fillet001")
fillet2.Base = (fillet, edges_at(fillet, [
    (4, 45.65, 45.15),
    (4, 45.65, -41.15),
    (4, -45.65, 45.15),
    (4, -45.65, -41.15),
]))
fillet2.Radius = 0.5

doc.recompute()
